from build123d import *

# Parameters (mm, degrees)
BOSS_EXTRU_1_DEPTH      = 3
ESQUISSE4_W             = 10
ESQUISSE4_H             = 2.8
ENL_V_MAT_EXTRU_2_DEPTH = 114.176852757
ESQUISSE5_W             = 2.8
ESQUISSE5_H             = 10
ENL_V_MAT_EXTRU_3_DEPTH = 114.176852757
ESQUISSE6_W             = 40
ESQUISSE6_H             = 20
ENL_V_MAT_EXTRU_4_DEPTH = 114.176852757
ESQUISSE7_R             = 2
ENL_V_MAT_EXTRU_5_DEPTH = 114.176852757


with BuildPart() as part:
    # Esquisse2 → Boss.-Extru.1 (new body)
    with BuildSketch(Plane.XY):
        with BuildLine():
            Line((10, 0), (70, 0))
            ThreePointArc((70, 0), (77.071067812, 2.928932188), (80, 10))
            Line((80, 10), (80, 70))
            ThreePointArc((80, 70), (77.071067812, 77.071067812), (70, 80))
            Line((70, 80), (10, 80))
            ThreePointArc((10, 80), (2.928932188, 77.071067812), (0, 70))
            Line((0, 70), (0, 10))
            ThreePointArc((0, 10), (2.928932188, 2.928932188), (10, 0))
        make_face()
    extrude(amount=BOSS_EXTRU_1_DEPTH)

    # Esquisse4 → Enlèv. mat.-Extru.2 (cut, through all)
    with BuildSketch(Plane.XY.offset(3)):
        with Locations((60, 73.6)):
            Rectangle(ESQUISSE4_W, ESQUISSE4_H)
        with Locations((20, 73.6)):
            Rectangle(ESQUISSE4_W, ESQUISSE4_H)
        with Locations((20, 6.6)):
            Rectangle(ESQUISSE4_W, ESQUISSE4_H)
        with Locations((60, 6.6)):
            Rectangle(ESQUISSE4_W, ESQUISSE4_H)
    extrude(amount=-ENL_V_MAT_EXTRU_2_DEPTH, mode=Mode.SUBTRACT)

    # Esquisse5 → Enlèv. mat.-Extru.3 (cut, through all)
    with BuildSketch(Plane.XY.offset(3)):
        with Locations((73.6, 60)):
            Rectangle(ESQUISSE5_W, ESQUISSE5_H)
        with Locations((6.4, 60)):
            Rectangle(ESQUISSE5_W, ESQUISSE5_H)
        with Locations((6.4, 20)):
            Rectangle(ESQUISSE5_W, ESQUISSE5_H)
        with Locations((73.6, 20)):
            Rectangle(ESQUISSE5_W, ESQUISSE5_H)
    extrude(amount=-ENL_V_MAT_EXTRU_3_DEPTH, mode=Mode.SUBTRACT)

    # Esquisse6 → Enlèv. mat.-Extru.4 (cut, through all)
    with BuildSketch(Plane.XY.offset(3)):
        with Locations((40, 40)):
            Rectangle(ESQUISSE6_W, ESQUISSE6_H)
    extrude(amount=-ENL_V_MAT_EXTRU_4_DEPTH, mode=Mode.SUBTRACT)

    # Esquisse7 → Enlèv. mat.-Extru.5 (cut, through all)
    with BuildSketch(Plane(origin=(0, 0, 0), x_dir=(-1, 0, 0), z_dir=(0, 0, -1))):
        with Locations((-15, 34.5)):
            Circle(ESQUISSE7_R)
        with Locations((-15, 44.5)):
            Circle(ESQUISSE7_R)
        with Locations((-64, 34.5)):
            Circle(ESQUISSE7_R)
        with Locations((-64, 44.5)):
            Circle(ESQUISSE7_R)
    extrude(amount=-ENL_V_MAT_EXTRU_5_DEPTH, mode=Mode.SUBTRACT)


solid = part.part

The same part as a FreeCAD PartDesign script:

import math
import FreeCAD as App
import Part
import Sketcher

doc = App.newDocument("Part")
body = doc.addObject("PartDesign::Body", "Body")

sketch1 = body.newObject("Sketcher::SketchObject", "Sketch")
sketch1.AttachmentSupport = (doc.getObject("XY_Plane"), [""])
sketch1.MapMode = "FlatFace"
sketch1.addGeometry(Part.LineSegment(App.Vector(10, 0, 0), App.Vector(70, 0, 0)), False)
sketch1.addGeometry(Part.ArcOfCircle(Part.Circle(App.Vector(70, 10, 0), App.Vector(0, 0, 1), 10), math.radians(-90), math.radians(0)), False)
sketch1.addGeometry(Part.LineSegment(App.Vector(80, 10, 0), App.Vector(80, 70, 0)), False)
sketch1.addGeometry(Part.ArcOfCircle(Part.Circle(App.Vector(70, 70, 0), App.Vector(0, 0, 1), 10), math.radians(0), math.radians(90)), False)
sketch1.addGeometry(Part.LineSegment(App.Vector(70, 80, 0), App.Vector(10, 80, 0)), False)
sketch1.addGeometry(Part.ArcOfCircle(Part.Circle(App.Vector(10, 70, 0), App.Vector(0, 0, 1), 10), math.radians(90), math.radians(180)), False)
sketch1.addGeometry(Part.LineSegment(App.Vector(0, 70, 0), App.Vector(0, 10, 0)), False)
sketch1.addGeometry(Part.ArcOfCircle(Part.Circle(App.Vector(10, 10, 0), App.Vector(0, 0, 1), 10), math.radians(180), math.radians(270)), False)
sketch1.addConstraint(Sketcher.Constraint("Tangent", 0, 2, 1, 1))
sketch1.addConstraint(Sketcher.Constraint("Tangent", 1, 2, 2, 1))
sketch1.addConstraint(Sketcher.Constraint("Tangent", 2, 2, 3, 1))
sketch1.addConstraint(Sketcher.Constraint("Tangent", 3, 2, 4, 1))
sketch1.addConstraint(Sketcher.Constraint("Tangent", 4, 2, 5, 1))
sketch1.addConstraint(Sketcher.Constraint("Tangent", 5, 2, 6, 1))
sketch1.addConstraint(Sketcher.Constraint("Tangent", 6, 2, 7, 1))
sketch1.addConstraint(Sketcher.Constraint("Tangent", 7, 2, 0, 1))
sketch1.addConstraint(Sketcher.Constraint("Horizontal", 0))
sketch1.addConstraint(Sketcher.Constraint("Vertical", 2))
sketch1.addConstraint(Sketcher.Constraint("Horizontal", 4))
sketch1.addConstraint(Sketcher.Constraint("Vertical", 6))
sketch1.addConstraint(Sketcher.Constraint("Equal", 1, 3))
sketch1.addConstraint(Sketcher.Constraint("Equal", 3, 5))
sketch1.addConstraint(Sketcher.Constraint("Equal", 5, 7))
sketch1.addConstraint(Sketcher.Constraint("PointOnObject", 0, 2, -1))
sketch1.addConstraint(Sketcher.Constraint("PointOnObject", 5, 2, -2))
sketch1.addConstraint(Sketcher.Constraint("Equal", 4, 2))
sketch1.addConstraint(Sketcher.Constraint("Radius", 1, 10.0))
sketch1.addConstraint(Sketcher.Constraint("DistanceX", 0, 1, 0, 2, 60.0))
pad1 = body.newObject("PartDesign::Pad", "Pad")
pad1.Profile = sketch1
pad1.Length = 3

sketch2 = body.newObject("Sketcher::SketchObject", "Sketch001")
sketch2.AttachmentSupport = (doc.getObject("XY_Plane"), [""])
sketch2.MapMode = "FlatFace"
sketch2.AttachmentOffset = App.Placement(App.Vector(0, 0, 3), App.Rotation())
sketch2.addGeometry(Part.LineSegment(App.Vector(55, 75, 0), App.Vector(55, 72.2, 0)), False)
sketch2.addGeometry(Part.LineSegment(App.Vector(55, 72.2, 0), App.Vector(65, 72.2, 0)), False)
sketch2.addGeometry(Part.LineSegment(App.Vector(65, 72.2, 0), App.Vector(65, 75, 0)), False)
sketch2.addGeometry(Part.LineSegment(App.Vector(65, 75, 0), App.Vector(55, 75, 0)), False)
sketch2.addGeometry(Part.LineSegment(App.Vector(15, 75, 0), App.Vector(15, 72.2, 0)), False)
sketch2.addGeometry(Part.LineSegment(App.Vector(15, 72.2, 0), App.Vector(25, 72.2, 0)), False)
sketch2.addGeometry(Part.LineSegment(App.Vector(25, 72.2, 0), App.Vector(25, 75, 0)), False)
sketch2.addGeometry(Part.LineSegment(App.Vector(25, 75, 0), App.Vector(15, 75, 0)), False)
sketch2.addGeometry(Part.LineSegment(App.Vector(15, 8, 0), App.Vector(15, 5.2, 0)), False)
sketch2.addGeometry(Part.LineSegment(App.Vector(15, 5.2, 0), App.Vector(25, 5.2, 0)), False)
sketch2.addGeometry(Part.LineSegment(App.Vector(25, 5.2, 0), App.Vector(25, 8, 0)), False)
sketch2.addGeometry(Part.LineSegment(App.Vector(25, 8, 0), App.Vector(15, 8, 0)), False)
sketch2.addGeometry(Part.LineSegment(App.Vector(55, 8, 0), App.Vector(55, 5.2, 0)), False)
sketch2.addGeometry(Part.LineSegment(App.Vector(55, 5.2, 0), App.Vector(65, 5.2, 0)), False)
sketch2.addGeometry(Part.LineSegment(App.Vector(65, 5.2, 0), App.Vector(65, 8, 0)), False)
sketch2.addGeometry(Part.LineSegment(App.Vector(65, 8, 0), App.Vector(55, 8, 0)), False)
sketch2.addConstraint(Sketcher.Constraint("Coincident", 0, 2, 1, 1))
sketch2.addConstraint(Sketcher.Constraint("Coincident", 1, 2, 2, 1))
sketch2.addConstraint(Sketcher.Constraint("Coincident", 2, 2, 3, 1))
sketch2.addConstraint(Sketcher.Constraint("Coincident", 3, 2, 0, 1))
sketch2.addConstraint(Sketcher.Constraint("Coincident", 4, 2, 5, 1))
sketch2.addConstraint(Sketcher.Constraint("Coincident", 5, 2, 6, 1))
sketch2.addConstraint(Sketcher.Constraint("Coincident", 6, 2, 7, 1))
sketch2.addConstraint(Sketcher.Constraint("Coincident", 7, 2, 4, 1))
sketch2.addConstraint(Sketcher.Constraint("Coincident", 8, 2, 9, 1))
sketch2.addConstraint(Sketcher.Constraint("Coincident", 9, 2, 10, 1))
sketch2.addConstraint(Sketcher.Constraint("Coincident", 10, 2, 11, 1))
sketch2.addConstraint(Sketcher.Constraint("Coincident", 11, 2, 8, 1))
sketch2.addConstraint(Sketcher.Constraint("Coincident", 12, 2, 13, 1))
sketch2.addConstraint(Sketcher.Constraint("Coincident", 13, 2, 14, 1))
sketch2.addConstraint(Sketcher.Constraint("Coincident", 14, 2, 15, 1))
sketch2.addConstraint(Sketcher.Constraint("Coincident", 15, 2, 12, 1))
sketch2.addConstraint(Sketcher.Constraint("Vertical", 0))
sketch2.addConstraint(Sketcher.Constraint("Horizontal", 1))
sketch2.addConstraint(Sketcher.Constraint("Vertical", 2))
sketch2.addConstraint(Sketcher.Constraint("Horizontal", 3))
sketch2.addConstraint(Sketcher.Constraint("Vertical", 4))
sketch2.addConstraint(Sketcher.Constraint("Horizontal", 5))
sketch2.addConstraint(Sketcher.Constraint("Vertical", 6))
sketch2.addConstraint(Sketcher.Constraint("Horizontal", 7))
sketch2.addConstraint(Sketcher.Constraint("Vertical", 8))
sketch2.addConstraint(Sketcher.Constraint("Horizontal", 9))
sketch2.addConstraint(Sketcher.Constraint("Vertical", 10))
sketch2.addConstraint(Sketcher.Constraint("Horizontal", 11))
sketch2.addConstraint(Sketcher.Constraint("Vertical", 12))
sketch2.addConstraint(Sketcher.Constraint("Horizontal", 13))
sketch2.addConstraint(Sketcher.Constraint("Vertical", 14))
sketch2.addConstraint(Sketcher.Constraint("Horizontal", 15))
sketch2.addConstraint(Sketcher.Constraint("Horizontal", 1, 2, 4, 2))
sketch2.addConstraint(Sketcher.Constraint("Horizontal", 3, 2, 6, 2))
sketch2.addConstraint(Sketcher.Constraint("Horizontal", 9, 2, 12, 2))
sketch2.addConstraint(Sketcher.Constraint("Horizontal", 11, 2, 14, 2))
sketch2.addConstraint(Sketcher.Constraint("Vertical", 7, 2, 8, 2))
sketch2.addConstraint(Sketcher.Constraint("Vertical", 6, 2, 9, 2))
sketch2.addConstraint(Sketcher.Constraint("Vertical", 3, 2, 12, 2))
sketch2.addConstraint(Sketcher.Constraint("Vertical", 2, 2, 13, 2))
sketch2.addConstraint(Sketcher.Constraint("Equal", 3, 5))
sketch2.addConstraint(Sketcher.Constraint("Equal", 6, 8))
sketch2.addConstraint(Sketcher.Constraint("DistanceX", 1, 1, 1, 2, 10.0))
sketch2.addConstraint(Sketcher.Constraint("DistanceY", 0, 2, 0, 1, 2.8))
sketch2.addConstraint(Sketcher.Constraint("DistanceX", -1, 1, 0, 2, 55.0))
sketch2.addConstraint(Sketcher.Constraint("DistanceY", -1, 1, 2, 2, 75.0))
sketch2.addConstraint(Sketcher.Constraint("DistanceX", -1, 1, 4, 2, 15.0))
sketch2.addConstraint(Sketcher.Constraint("DistanceY", -1, 1, 10, 2, 8.0))
pocket1 = body.newObject("PartDesign::Pocket", "Pocket")
pocket1.Profile = sketch2
pocket1.Type = "ThroughAll"

sketch3 = body.newObject("Sketcher::SketchObject", "Sketch002")
sketch3.AttachmentSupport = (doc.getObject("XY_Plane"), [""])
sketch3.MapMode = "FlatFace"
sketch3.AttachmentOffset = App.Placement(App.Vector(0, 0, 3), App.Rotation())
sketch3.addGeometry(Part.LineSegment(App.Vector(72.2, 65, 0), App.Vector(72.2, 55, 0)), False)
sketch3.addGeometry(Part.LineSegment(App.Vector(72.2, 55, 0), App.Vector(75, 55, 0)), False)
sketch3.addGeometry(Part.LineSegment(App.Vector(75, 55, 0), App.Vector(75, 65, 0)), False)
sketch3.addGeometry(Part.LineSegment(App.Vector(75, 65, 0), App.Vector(72.2, 65, 0)), False)
sketch3.addGeometry(Part.LineSegment(App.Vector(5, 65, 0), App.Vector(5, 55, 0)), False)
sketch3.addGeometry(Part.LineSegment(App.Vector(5, 55, 0), App.Vector(7.8, 55, 0)), False)
sketch3.addGeometry(Part.LineSegment(App.Vector(7.8, 55, 0), App.Vector(7.8, 65, 0)), False)
sketch3.addGeometry(Part.LineSegment(App.Vector(7.8, 65, 0), App.Vector(5, 65, 0)), False)
sketch3.addGeometry(Part.LineSegment(App.Vector(5, 25, 0), App.Vector(5, 15, 0)), False)
sketch3.addGeometry(Part.LineSegment(App.Vector(5, 15, 0), App.Vector(7.8, 15, 0)), False)
sketch3.addGeometry(Part.LineSegment(App.Vector(7.8, 15, 0), App.Vector(7.8, 25, 0)), False)
sketch3.addGeometry(Part.LineSegment(App.Vector(7.8, 25, 0), App.Vector(5, 25, 0)), False)
sketch3.addGeometry(Part.LineSegment(App.Vector(72.2, 25, 0), App.Vector(72.2, 15, 0)), False)
sketch3.addGeometry(Part.LineSegment(App.Vector(72.2, 15, 0), App.Vector(75, 15, 0)), False)
sketch3.addGeometry(Part.LineSegment(App.Vector(75, 15, 0), App.Vector(75, 25, 0)), False)
sketch3.addGeometry(Part.LineSegment(App.Vector(75, 25, 0), App.Vector(72.2, 25, 0)), False)
sketch3.addConstraint(Sketcher.Constraint("Coincident", 0, 2, 1, 1))
sketch3.addConstraint(Sketcher.Constraint("Coincident", 1, 2, 2, 1))
sketch3.addConstraint(Sketcher.Constraint("Coincident", 2, 2, 3, 1))
sketch3.addConstraint(Sketcher.Constraint("Coincident", 3, 2, 0, 1))
sketch3.addConstraint(Sketcher.Constraint("Coincident", 4, 2, 5, 1))
sketch3.addConstraint(Sketcher.Constraint("Coincident", 5, 2, 6, 1))
sketch3.addConstraint(Sketcher.Constraint("Coincident", 6, 2, 7, 1))
sketch3.addConstraint(Sketcher.Constraint("Coincident", 7, 2, 4, 1))
sketch3.addConstraint(Sketcher.Constraint("Coincident", 8, 2, 9, 1))
sketch3.addConstraint(Sketcher.Constraint("Coincident", 9, 2, 10, 1))
sketch3.addConstraint(Sketcher.Constraint("Coincident", 10, 2, 11, 1))
sketch3.addConstraint(Sketcher.Constraint("Coincident", 11, 2, 8, 1))
sketch3.addConstraint(Sketcher.Constraint("Coincident", 12, 2, 13, 1))
sketch3.addConstraint(Sketcher.Constraint("Coincident", 13, 2, 14, 1))
sketch3.addConstraint(Sketcher.Constraint("Coincident", 14, 2, 15, 1))
sketch3.addConstraint(Sketcher.Constraint("Coincident", 15, 2, 12, 1))
sketch3.addConstraint(Sketcher.Constraint("Vertical", 0))
sketch3.addConstraint(Sketcher.Constraint("Horizontal", 1))
sketch3.addConstraint(Sketcher.Constraint("Vertical", 2))
sketch3.addConstraint(Sketcher.Constraint("Horizontal", 3))
sketch3.addConstraint(Sketcher.Constraint("Vertical", 4))
sketch3.addConstraint(Sketcher.Constraint("Horizontal", 5))
sketch3.addConstraint(Sketcher.Constraint("Vertical", 6))
sketch3.addConstraint(Sketcher.Constraint("Horizontal", 7))
sketch3.addConstraint(Sketcher.Constraint("Vertical", 8))
sketch3.addConstraint(Sketcher.Constraint("Horizontal", 9))
sketch3.addConstraint(Sketcher.Constraint("Vertical", 10))
sketch3.addConstraint(Sketcher.Constraint("Horizontal", 11))
sketch3.addConstraint(Sketcher.Constraint("Vertical", 12))
sketch3.addConstraint(Sketcher.Constraint("Horizontal", 13))
sketch3.addConstraint(Sketcher.Constraint("Vertical", 14))
sketch3.addConstraint(Sketcher.Constraint("Horizontal", 15))
sketch3.addConstraint(Sketcher.Constraint("Horizontal", 1, 2, 4, 2))
sketch3.addConstraint(Sketcher.Constraint("Horizontal", 3, 2, 6, 2))
sketch3.addConstraint(Sketcher.Constraint("Horizontal", 9, 2, 12, 2))
sketch3.addConstraint(Sketcher.Constraint("Horizontal", 11, 2, 14, 2))
sketch3.addConstraint(Sketcher.Constraint("Vertical", 7, 2, 8, 2))
sketch3.addConstraint(Sketcher.Constraint("Vertical", 6, 2, 9, 2))
sketch3.addConstraint(Sketcher.Constraint("Vertical", 3, 2, 12, 2))
sketch3.addConstraint(Sketcher.Constraint("Vertical", 2, 2, 13, 2))
sketch3.addConstraint(Sketcher.Constraint("Equal", 3, 5))
sketch3.addConstraint(Sketcher.Constraint("Equal", 6, 8))
sketch3.addConstraint(Sketcher.Constraint("DistanceY", 0, 2, 0, 1, 10.0))
sketch3.addConstraint(Sketcher.Constraint("DistanceX", 1, 1, 1, 2, 2.8))
sketch3.addConstraint(Sketcher.Constraint("DistanceY", -1, 1, 0, 2, 55.0))
sketch3.addConstraint(Sketcher.Constraint("DistanceX", -1, 1, 1, 2, 75.0))
sketch3.addConstraint(Sketcher.Constraint("DistanceX", -1, 1, 4, 2, 5.0))
sketch3.addConstraint(Sketcher.Constraint("DistanceY", -1, 1, 8, 2, 15.0))
pocket2 = body.newObject("PartDesign::Pocket", "Pocket001")
pocket2.Profile = sketch3
pocket2.Type = "ThroughAll"

sketch4 = body.newObject("Sketcher::SketchObject", "Sketch003")
sketch4.AttachmentSupport = (doc.getObject("XY_Plane"), [""])
sketch4.MapMode = "FlatFace"
sketch4.AttachmentOffset = App.Placement(App.Vector(0, 0, 3), App.Rotation())
sketch4.addGeometry(Part.LineSegment(App.Vector(20, 50, 0), App.Vector(20, 30, 0)), False)
sketch4.addGeometry(Part.LineSegment(App.Vector(20, 30, 0), App.Vector(60, 30, 0)), False)
sketch4.addGeometry(Part.LineSegment(App.Vector(60, 30, 0), App.Vector(60, 50, 0)), False)
sketch4.addGeometry(Part.LineSegment(App.Vector(60, 50, 0), App.Vector(20, 50, 0)), False)
sketch4.addConstraint(Sketcher.Constraint("Coincident", 0, 2, 1, 1))
sketch4.addConstraint(Sketcher.Constraint("Coincident", 1, 2, 2, 1))
sketch4.addConstraint(Sketcher.Constraint("Coincident", 2, 2, 3, 1))
sketch4.addConstraint(Sketcher.Constraint("Coincident", 3, 2, 0, 1))
sketch4.addConstraint(Sketcher.Constraint("Vertical", 0))
sketch4.addConstraint(Sketcher.Constraint("Horizontal", 1))
sketch4.addConstraint(Sketcher.Constraint("Vertical", 2))
sketch4.addConstraint(Sketcher.Constraint("Horizontal", 3))
sketch4.addConstraint(Sketcher.Constraint("DistanceX", 1, 1, 1, 2, 40.0))
sketch4.addConstraint(Sketcher.Constraint("DistanceY", 0, 2, 0, 1, 20.0))
sketch4.addConstraint(Sketcher.Constraint("DistanceX", -1, 1, 0, 2, 20.0))
sketch4.addConstraint(Sketcher.Constraint("DistanceY", -1, 1, 0, 2, 30.0))
pocket3 = body.newObject("PartDesign::Pocket", "Pocket002")
pocket3.Profile = sketch4
pocket3.Type = "ThroughAll"

sketch5 = body.newObject("Sketcher::SketchObject", "Sketch004")
sketch5.AttachmentSupport = (doc.getObject("XY_Plane"), [""])
sketch5.MapMode = "FlatFace"
sketch5.addGeometry(Part.Circle(App.Vector(15, 34.5, 0), App.Vector(0, 0, 1), 2), False)
sketch5.addGeometry(Part.Circle(App.Vector(15, 44.5, 0), App.Vector(0, 0, 1), 2), False)
sketch5.addGeometry(Part.Circle(App.Vector(64, 34.5, 0), App.Vector(0, 0, 1), 2), False)
sketch5.addGeometry(Part.Circle(App.Vector(64, 44.5, 0), App.Vector(0, 0, 1), 2), False)
sketch5.addConstraint(Sketcher.Constraint("Equal", 0, 1))
sketch5.addConstraint(Sketcher.Constraint("Equal", 1, 2))
sketch5.addConstraint(Sketcher.Constraint("Equal", 2, 3))
sketch5.addConstraint(Sketcher.Constraint("Horizontal", 0, 3, 2, 3))
sketch5.addConstraint(Sketcher.Constraint("Horizontal", 1, 3, 3, 3))
sketch5.addConstraint(Sketcher.Constraint("Vertical", 0, 3, 1, 3))
sketch5.addConstraint(Sketcher.Constraint("Vertical", 2, 3, 3, 3))
sketch5.addConstraint(Sketcher.Constraint("Diameter", 0, 4.0))
sketch5.addConstraint(Sketcher.Constraint("DistanceX", -1, 1, 0, 3, 15.0))
sketch5.addConstraint(Sketcher.Constraint("DistanceX", -1, 1, 2, 3, 64.0))
sketch5.addConstraint(Sketcher.Constraint("DistanceY", 0, 3, 1, 3, 10.0))
sketch5.addConstraint(Sketcher.Constraint("DistanceY", -1, 1, 0, 3, 34.5))
pocket4 = body.newObject("PartDesign::Pocket", "Pocket003")
pocket4.Profile = sketch5
pocket4.Type = "ThroughAll"
pocket4.Reversed = True

doc.recompute()
